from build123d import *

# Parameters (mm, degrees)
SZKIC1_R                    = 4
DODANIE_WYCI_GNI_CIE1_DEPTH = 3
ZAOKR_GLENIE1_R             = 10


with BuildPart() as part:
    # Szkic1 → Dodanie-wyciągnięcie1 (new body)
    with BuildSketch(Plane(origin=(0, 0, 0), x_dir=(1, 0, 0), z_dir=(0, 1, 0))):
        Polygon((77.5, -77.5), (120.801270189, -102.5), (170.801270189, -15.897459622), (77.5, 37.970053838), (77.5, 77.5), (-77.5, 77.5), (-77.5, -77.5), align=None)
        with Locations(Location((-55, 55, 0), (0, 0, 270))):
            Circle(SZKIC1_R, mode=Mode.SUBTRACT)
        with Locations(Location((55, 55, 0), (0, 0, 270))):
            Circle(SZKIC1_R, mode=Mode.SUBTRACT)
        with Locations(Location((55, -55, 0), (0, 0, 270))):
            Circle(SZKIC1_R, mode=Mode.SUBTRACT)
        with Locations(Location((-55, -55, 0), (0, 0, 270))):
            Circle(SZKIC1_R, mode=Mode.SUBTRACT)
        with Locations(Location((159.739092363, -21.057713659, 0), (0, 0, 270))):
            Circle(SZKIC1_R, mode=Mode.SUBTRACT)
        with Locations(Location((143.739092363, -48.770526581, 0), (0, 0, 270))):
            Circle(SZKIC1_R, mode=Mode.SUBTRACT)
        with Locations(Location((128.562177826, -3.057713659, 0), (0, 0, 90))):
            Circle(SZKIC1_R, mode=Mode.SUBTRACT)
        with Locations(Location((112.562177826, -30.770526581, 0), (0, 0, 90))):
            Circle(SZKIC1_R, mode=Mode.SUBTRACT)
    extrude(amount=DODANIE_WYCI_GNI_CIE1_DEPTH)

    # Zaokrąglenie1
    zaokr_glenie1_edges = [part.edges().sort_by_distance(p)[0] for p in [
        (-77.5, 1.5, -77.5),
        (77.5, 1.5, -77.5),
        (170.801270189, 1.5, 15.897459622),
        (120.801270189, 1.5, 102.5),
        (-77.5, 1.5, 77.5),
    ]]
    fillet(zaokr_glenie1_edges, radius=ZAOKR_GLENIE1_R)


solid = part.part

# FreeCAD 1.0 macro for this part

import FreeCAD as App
import Part
import Sketcher
Q = App.Units.Quantity


def edges_at(feature, points):
    """Names of the edges that pass closest to the given points."""
    edges = feature.Shape.Edges
    near = lambda p: min(range(len(edges)), key=lambda i: edges[i].distToShape(Part.Vertex(*p))[0])
    return sorted({f"Edge{near(p) + 1}" for p in points})


def add_polygon(sketch, points):
    """Adds a closed chain of lines whose ends are joined by coincident constraints."""
    first, n = sketch.GeometryCount, len(points)
    for a, b in zip(points, points[1:] + points[:1]):
        sketch.addGeometry(Part.LineSegment(App.Vector(*a, 0), App.Vector(*b, 0)), False)
    for i in range(n):
        sketch.addConstraint(Sketcher.Constraint("Coincident", first + i, 2, first + (i + 1) % n, 1))

doc = App.newDocument("Part")
body = doc.addObject("PartDesign::Body", "Body")

sketch1 = body.newObject("Sketcher::SketchObject", "Sketch")
sketch1.AttachmentSupport = (doc.getObject("XZ_Plane"), [""])
sketch1.MapMode = "FlatFace"
add_polygon(sketch1, [(77.5, 77.5), (120.8, 102.5), (170.8, 15.9), (77.5, -38), (77.5, -77.5), (-77.5, -77.5), (-77.5, 77.5)])
sketch1.addGeometry(Part.Circle(App.Vector(-55, 55, 0), App.Vector(0, 0, 1), 4), False)
sketch1.addGeometry(Part.Circle(App.Vector(55, 55, 0), App.Vector(0, 0, 1), 4), False)
sketch1.addGeometry(Part.Circle(App.Vector(143.7, 48.8, 0), App.Vector(0, 0, 1), 4), False)
sketch1.addGeometry(Part.Circle(App.Vector(112.6, 30.8, 0), App.Vector(0, 0, 1), 4), False)
sketch1.addGeometry(Part.Circle(App.Vector(159.7, 21.1, 0), App.Vector(0, 0, 1), 4), False)
sketch1.addGeometry(Part.Circle(App.Vector(128.6, 3.1, 0), App.Vector(0, 0, 1), 4), False)
sketch1.addGeometry(Part.Circle(App.Vector(-55, -55, 0), App.Vector(0, 0, 1), 4), False)
sketch1.addGeometry(Part.Circle(App.Vector(55, -55, 0), App.Vector(0, 0, 1), 4), False)
sketch1.addConstraint([
    Sketcher.Constraint("Vertical", 3),
    Sketcher.Constraint("Horizontal", 4),
    Sketcher.Constraint("Vertical", 5),
    Sketcher.Constraint("Horizontal", 6),
    Sketcher.Constraint("Equal", 7, 8),
    Sketcher.Constraint("Equal", 8, 9),
    Sketcher.Constraint("Equal", 9, 10),
    Sketcher.Constraint("Equal", 10, 11),
    Sketcher.Constraint("Equal", 11, 12),
    Sketcher.Constraint("Equal", 12, 13),
    Sketcher.Constraint("Equal", 13, 14),
    Sketcher.Constraint("Symmetric", 8, 3, 13, 3, -1, 1),
    Sketcher.Constraint("Symmetric", 7, 3, 14, 3, -1, 1),
    Sketcher.Constraint("Symmetric", 3, 2, 5, 2, -1, 1),
    Sketcher.Constraint("Symmetric", 7, 3, 8, 3, -2),
    Sketcher.Constraint("Perpendicular", 0, 1),
    Sketcher.Constraint("Perpendicular", 1, 2),
    Sketcher.Constraint("Vertical", 3, 2, 6, 2),
    Sketcher.Constraint("Equal", 6, 5),
    Sketcher.Constraint("Diameter", 7, Q("8 mm")),
    Sketcher.Constraint("DistanceX", 4, 2, 4, 1, Q("155 mm")),
    Sketcher.Constraint("Angle", 0, Q("30 deg")),
    Sketcher.Constraint("Distance", 0, Q("50 mm")),
    Sketcher.Constraint("Distance", 1, Q("100 mm")),
    Sketcher.Constraint("DistanceX", 7, 3, -1, 1, Q("55 mm")),
    Sketcher.Constraint("DistanceY", -1, 1, 7, 3, Q("55 mm")),
    Sketcher.Constraint("DistanceY", 10, 3, 9, 3, Q("18 mm")),
    Sketcher.Constraint("DistanceX", 9, 3, 11, 3, Q("16 mm")),
    Sketcher.Constraint("DistanceX", 10, 3, 12, 3, Q("16 mm")),
    Sketcher.Constraint("DistanceY", 12, 3, 11, 3, Q("18 mm")),
    Sketcher.Constraint("DistanceY", 2, 2, 10, 3, Q("68.74058 mm")),
    Sketcher.Constraint("DistanceX", -1, 1, 9, 3, Q("143.739092 mm")),
    Sketcher.Constraint("DistanceX", -1, 1, 10, 3, Q("112.562178 mm")),
    Sketcher.Constraint("DistanceY", -1, 1, 11, 3, Q("21.057714 mm")),
])
pad1 = body.newObject("PartDesign::Pad", "Pad")
pad1.Profile = sketch1
pad1.Length = 3
pad1.Reversed = True
doc.recompute()

fillet = body.newObject("PartDesign::Fillet", "Fillet")
fillet.Base = (pad1, edges_at(pad1, [
    (-77.5, 1.5, -77.5),
    (77.5, 1.5, -77.5),
    (170.801, 1.5, 15.897),
    (120.801, 1.5, 102.5),
    (-77.5, 1.5, 77.5),
]))
fillet.Radius = 10

doc.recompute()
